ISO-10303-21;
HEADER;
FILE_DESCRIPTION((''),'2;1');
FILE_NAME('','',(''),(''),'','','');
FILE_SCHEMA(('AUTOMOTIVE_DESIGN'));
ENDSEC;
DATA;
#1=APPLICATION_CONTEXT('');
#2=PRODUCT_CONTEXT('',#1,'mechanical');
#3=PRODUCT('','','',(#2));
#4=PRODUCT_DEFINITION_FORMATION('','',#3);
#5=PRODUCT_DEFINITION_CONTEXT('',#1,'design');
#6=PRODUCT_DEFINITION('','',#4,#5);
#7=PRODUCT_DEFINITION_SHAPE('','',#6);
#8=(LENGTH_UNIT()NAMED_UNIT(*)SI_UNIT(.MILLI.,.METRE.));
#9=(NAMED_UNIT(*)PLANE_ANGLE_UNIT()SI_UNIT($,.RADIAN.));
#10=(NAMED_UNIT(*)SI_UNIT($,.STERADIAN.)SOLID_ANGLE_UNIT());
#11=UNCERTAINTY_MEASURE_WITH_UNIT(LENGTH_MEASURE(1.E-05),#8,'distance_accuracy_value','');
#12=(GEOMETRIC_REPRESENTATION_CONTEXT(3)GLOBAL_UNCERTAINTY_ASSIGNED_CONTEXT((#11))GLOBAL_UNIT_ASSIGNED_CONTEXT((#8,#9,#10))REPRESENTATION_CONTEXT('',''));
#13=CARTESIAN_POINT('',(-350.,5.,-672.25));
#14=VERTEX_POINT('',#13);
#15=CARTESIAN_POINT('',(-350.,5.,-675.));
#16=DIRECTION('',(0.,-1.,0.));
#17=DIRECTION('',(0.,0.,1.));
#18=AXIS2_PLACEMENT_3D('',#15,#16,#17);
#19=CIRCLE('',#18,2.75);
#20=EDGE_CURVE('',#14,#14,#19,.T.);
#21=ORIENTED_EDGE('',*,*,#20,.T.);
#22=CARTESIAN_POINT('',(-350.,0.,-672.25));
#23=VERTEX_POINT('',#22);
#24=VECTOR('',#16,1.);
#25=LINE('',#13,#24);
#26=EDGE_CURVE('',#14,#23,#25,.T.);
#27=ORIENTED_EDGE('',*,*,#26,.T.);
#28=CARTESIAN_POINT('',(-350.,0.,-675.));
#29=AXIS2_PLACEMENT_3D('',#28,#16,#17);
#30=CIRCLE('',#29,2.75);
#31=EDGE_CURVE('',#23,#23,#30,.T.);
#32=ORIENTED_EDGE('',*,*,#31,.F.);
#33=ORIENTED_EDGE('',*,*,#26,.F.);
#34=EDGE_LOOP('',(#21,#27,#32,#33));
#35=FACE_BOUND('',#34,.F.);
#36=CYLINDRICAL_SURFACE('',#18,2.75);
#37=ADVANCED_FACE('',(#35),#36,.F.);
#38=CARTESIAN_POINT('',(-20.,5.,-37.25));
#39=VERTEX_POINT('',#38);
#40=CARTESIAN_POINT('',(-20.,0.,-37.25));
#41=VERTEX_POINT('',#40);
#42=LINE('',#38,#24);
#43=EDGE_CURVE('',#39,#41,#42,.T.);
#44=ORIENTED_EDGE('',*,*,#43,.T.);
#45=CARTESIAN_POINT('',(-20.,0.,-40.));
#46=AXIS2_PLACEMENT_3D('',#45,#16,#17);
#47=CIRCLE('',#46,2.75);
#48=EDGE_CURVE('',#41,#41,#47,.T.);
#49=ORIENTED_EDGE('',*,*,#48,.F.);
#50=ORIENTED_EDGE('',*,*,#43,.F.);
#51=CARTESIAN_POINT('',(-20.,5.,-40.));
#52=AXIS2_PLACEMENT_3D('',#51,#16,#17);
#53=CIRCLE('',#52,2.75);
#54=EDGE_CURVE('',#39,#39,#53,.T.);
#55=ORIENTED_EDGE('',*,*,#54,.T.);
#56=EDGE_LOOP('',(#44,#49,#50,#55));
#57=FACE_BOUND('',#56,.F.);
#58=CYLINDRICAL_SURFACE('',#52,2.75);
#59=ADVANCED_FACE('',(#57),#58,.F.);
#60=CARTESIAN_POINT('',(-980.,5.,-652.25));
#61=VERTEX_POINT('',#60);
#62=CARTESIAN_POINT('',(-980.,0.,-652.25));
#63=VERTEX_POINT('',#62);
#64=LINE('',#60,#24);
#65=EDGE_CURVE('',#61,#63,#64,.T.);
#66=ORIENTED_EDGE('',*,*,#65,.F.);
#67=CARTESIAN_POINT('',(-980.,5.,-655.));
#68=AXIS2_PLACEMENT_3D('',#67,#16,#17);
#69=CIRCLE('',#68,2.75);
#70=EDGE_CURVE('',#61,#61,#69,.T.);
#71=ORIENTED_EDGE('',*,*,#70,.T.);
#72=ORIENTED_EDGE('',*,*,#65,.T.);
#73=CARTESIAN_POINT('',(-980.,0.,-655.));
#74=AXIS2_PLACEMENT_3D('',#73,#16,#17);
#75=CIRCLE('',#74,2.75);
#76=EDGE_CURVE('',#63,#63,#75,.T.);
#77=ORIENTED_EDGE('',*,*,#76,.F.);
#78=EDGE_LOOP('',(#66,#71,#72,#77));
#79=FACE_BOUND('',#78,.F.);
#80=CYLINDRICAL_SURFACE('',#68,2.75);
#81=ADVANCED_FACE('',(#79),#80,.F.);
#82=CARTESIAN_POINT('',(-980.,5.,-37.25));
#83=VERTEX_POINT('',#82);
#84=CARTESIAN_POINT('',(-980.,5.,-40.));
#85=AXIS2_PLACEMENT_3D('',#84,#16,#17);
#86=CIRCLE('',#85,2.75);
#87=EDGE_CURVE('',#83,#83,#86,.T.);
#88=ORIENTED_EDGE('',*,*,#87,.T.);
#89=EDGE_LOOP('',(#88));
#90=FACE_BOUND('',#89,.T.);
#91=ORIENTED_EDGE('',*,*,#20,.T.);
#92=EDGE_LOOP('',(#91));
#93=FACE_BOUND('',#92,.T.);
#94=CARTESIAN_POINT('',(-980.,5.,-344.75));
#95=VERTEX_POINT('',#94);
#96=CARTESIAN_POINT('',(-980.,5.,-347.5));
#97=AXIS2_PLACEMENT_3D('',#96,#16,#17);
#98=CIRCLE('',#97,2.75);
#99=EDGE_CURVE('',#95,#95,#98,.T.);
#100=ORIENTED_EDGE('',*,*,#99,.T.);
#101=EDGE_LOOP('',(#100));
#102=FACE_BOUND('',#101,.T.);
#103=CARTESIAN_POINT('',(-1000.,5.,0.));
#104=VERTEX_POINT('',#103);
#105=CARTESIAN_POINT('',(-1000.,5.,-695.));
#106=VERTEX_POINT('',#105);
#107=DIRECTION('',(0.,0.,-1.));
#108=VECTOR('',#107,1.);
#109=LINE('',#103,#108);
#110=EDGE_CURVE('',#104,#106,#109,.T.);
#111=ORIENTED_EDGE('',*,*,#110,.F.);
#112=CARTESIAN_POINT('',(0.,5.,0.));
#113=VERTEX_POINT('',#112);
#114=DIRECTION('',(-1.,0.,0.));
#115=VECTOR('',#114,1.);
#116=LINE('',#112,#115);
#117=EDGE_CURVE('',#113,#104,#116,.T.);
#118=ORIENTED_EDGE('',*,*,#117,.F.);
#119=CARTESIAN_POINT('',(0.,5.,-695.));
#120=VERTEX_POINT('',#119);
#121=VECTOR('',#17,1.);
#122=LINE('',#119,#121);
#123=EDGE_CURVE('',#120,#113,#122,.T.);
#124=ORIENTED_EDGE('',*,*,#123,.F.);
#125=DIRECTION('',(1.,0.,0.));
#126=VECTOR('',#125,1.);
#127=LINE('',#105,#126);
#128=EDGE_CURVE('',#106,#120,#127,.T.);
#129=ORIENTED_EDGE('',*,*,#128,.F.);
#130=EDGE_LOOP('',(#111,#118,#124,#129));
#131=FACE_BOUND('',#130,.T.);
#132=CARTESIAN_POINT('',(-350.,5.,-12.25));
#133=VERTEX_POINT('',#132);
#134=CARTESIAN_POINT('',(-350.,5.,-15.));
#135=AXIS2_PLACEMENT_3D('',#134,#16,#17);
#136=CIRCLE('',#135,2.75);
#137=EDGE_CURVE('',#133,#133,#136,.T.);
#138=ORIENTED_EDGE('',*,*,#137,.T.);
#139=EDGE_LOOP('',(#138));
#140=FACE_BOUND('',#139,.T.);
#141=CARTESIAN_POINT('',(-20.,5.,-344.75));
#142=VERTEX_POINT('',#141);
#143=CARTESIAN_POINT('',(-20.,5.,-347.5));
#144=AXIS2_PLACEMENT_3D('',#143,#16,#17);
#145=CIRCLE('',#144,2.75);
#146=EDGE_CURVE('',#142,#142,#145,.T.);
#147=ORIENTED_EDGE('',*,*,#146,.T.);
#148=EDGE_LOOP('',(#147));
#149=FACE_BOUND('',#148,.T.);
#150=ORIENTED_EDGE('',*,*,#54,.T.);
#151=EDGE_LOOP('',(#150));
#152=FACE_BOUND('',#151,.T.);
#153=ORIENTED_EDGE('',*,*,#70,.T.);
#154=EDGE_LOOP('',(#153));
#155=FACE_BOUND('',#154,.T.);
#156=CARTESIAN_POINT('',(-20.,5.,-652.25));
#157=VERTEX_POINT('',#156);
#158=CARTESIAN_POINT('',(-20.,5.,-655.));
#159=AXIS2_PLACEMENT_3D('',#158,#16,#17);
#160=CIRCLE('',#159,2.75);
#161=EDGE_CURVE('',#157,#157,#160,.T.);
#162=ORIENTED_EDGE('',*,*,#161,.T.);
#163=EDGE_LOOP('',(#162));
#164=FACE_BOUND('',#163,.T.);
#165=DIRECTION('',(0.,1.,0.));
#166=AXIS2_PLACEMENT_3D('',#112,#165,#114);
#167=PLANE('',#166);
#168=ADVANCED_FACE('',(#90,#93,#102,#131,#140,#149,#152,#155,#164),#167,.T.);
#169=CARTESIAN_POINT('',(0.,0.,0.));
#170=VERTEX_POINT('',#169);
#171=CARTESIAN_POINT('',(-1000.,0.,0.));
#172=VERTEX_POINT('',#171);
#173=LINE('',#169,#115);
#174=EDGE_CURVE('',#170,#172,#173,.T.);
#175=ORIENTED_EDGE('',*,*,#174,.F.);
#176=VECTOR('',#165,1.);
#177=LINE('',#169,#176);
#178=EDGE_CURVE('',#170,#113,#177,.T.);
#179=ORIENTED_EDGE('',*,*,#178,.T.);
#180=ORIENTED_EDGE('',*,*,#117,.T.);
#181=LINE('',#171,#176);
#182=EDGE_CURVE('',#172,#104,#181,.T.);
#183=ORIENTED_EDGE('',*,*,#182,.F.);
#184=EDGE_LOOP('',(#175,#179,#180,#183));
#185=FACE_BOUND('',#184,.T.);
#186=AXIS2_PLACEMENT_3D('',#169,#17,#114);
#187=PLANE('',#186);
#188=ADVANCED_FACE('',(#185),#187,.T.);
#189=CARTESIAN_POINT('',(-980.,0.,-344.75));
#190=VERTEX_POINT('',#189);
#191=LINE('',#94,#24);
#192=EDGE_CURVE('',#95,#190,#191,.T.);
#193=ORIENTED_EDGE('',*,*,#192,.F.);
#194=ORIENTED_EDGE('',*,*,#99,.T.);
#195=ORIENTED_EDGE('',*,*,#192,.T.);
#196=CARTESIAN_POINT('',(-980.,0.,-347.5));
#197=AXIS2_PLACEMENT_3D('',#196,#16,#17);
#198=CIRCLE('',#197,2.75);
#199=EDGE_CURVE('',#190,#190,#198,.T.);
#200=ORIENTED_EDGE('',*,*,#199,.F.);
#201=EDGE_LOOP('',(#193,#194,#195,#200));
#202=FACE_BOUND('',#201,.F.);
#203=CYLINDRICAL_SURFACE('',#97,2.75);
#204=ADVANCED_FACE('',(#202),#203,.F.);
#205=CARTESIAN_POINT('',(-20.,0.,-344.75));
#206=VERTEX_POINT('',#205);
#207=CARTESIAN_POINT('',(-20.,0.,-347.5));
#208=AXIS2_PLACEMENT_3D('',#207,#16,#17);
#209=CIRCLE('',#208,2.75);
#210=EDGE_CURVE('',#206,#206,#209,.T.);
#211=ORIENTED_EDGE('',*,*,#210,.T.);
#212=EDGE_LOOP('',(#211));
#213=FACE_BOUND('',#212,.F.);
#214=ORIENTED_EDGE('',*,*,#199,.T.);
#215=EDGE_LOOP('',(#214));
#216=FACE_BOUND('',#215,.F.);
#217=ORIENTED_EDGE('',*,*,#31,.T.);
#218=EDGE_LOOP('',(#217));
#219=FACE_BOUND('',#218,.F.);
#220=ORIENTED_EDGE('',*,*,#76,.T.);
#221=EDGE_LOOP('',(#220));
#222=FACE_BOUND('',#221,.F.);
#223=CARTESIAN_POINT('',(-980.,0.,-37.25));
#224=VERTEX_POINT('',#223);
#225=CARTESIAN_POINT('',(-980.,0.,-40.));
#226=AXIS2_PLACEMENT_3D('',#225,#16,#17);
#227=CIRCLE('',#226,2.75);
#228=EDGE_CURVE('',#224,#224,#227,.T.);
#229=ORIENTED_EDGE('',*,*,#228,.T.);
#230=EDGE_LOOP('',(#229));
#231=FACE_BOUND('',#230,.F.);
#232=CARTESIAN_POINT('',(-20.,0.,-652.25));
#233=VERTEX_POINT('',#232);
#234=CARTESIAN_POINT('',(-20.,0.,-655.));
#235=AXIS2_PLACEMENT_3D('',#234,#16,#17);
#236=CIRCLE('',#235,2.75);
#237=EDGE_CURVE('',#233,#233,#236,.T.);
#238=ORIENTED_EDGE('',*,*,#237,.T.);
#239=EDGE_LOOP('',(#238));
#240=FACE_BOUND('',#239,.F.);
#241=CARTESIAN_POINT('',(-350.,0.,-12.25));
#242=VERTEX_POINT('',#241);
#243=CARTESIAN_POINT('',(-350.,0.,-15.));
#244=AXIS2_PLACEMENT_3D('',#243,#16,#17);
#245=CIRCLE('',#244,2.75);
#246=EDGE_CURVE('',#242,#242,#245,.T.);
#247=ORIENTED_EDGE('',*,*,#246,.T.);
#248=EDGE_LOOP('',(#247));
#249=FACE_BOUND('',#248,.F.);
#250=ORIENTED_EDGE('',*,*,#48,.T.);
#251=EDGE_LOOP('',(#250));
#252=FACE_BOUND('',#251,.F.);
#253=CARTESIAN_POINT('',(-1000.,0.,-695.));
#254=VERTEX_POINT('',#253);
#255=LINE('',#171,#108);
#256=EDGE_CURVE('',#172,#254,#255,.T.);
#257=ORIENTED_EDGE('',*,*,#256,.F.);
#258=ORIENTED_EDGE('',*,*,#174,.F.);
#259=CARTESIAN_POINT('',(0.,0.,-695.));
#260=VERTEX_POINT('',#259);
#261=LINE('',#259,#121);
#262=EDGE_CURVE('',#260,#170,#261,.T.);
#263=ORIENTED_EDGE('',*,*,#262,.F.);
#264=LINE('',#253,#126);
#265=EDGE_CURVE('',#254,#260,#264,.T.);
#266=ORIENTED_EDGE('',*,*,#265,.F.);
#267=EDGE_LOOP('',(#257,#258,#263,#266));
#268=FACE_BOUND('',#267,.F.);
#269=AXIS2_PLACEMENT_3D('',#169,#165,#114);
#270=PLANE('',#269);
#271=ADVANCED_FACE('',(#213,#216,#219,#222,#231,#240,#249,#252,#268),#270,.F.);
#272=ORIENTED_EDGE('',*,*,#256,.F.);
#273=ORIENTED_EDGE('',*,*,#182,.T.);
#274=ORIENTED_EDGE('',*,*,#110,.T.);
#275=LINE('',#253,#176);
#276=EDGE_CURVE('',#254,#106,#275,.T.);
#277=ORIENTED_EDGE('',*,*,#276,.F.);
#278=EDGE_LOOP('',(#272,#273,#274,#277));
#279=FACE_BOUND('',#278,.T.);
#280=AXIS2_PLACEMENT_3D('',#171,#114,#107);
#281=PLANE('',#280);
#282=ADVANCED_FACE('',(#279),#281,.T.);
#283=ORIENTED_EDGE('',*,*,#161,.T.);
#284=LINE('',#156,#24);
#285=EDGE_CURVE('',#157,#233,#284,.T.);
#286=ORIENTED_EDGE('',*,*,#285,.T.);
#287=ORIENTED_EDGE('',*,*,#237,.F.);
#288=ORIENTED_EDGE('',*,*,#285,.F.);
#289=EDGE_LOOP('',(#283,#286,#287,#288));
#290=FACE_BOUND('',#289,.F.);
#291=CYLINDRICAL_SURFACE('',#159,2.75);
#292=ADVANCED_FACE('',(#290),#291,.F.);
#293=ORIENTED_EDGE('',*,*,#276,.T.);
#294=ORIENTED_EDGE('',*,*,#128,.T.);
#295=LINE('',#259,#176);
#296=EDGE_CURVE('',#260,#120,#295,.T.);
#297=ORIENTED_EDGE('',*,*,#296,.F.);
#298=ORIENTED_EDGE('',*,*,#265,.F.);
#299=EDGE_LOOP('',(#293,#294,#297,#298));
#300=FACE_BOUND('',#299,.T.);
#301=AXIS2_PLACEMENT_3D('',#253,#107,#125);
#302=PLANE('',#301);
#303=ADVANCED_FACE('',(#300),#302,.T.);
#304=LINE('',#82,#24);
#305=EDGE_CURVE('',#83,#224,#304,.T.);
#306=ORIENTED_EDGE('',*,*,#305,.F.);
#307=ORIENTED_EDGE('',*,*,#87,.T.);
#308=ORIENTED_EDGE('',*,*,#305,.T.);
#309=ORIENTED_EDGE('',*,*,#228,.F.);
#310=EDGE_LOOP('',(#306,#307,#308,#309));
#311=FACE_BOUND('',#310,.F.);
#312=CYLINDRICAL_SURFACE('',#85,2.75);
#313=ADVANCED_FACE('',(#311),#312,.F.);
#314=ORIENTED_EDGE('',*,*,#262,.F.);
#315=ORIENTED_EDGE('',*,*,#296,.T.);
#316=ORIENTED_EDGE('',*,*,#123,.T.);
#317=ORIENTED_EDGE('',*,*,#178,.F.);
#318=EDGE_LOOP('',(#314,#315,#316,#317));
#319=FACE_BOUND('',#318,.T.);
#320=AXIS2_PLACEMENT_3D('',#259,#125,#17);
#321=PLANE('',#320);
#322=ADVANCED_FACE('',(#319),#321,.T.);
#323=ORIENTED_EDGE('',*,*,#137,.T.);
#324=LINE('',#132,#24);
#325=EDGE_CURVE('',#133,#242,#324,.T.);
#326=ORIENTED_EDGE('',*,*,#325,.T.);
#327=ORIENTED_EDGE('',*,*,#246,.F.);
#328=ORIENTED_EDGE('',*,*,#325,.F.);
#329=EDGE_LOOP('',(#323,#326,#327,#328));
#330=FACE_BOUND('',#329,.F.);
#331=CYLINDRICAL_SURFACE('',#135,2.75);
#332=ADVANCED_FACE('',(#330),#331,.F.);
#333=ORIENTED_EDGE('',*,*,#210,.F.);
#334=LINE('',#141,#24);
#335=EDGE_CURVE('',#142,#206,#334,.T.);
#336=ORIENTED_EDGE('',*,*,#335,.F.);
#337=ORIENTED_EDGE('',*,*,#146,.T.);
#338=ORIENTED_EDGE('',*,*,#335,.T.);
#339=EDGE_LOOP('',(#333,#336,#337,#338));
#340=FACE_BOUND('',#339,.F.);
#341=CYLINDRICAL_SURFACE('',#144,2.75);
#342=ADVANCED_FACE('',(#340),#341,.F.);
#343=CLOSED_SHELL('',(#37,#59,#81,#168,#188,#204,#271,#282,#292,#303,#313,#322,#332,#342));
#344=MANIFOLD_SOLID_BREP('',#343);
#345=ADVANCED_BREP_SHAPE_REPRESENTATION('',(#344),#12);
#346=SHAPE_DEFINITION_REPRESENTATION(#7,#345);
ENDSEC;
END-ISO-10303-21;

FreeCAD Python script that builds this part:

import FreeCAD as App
import Part
import Sketcher
from FreeCAD import Vector
Q = App.Units.Quantity


def add_polygon(sketch, points):
    """Adds a closed chain of lines whose ends are joined by coincident constraints."""
    first, n = sketch.GeometryCount, len(points)
    for a, b in zip(points, points[1:] + points[:1]):
        sketch.addGeometry(Part.LineSegment(App.Vector(*a, 0), App.Vector(*b, 0)), False)
    for i in range(n):
        sketch.addConstraint(Sketcher.Constraint("Coincident", first + i, 2, first + (i + 1) % n, 1))

doc = App.newDocument("Part")
body = doc.addObject("PartDesign::Body", "Body")

sketch1 = body.newObject("Sketcher::SketchObject", "Sketch")
sketch1.AttachmentSupport = (doc.getObject("XZ_Plane"), [""])
sketch1.MapMode = "FlatFace"
add_polygon(sketch1, [(-1000, 0), (0, 0), (0, -695), (-1000, -695)])
sketch1.addConstraint([
    Sketcher.Constraint("Horizontal", 0),
    Sketcher.Constraint("Vertical", 1),
    Sketcher.Constraint("Horizontal", 2),
    Sketcher.Constraint("Vertical", 3),
    Sketcher.Constraint("Coincident", 0, 2, -1, 1),
    Sketcher.Constraint("DistanceX", 0, 1, 0, 2, Q("1000 mm")),
    Sketcher.Constraint("DistanceY", 1, 2, 1, 1, Q("695 mm")),
])
pad1 = body.newObject("PartDesign::Pad", "Pad")
pad1.Profile = sketch1
pad1.Length = 5
pad1.Reversed = True

sketch2 = body.newObject("Sketcher::SketchObject", "Sketch001")
sketch2.AttachmentSupport = (doc.getObject("XZ_Plane"), [""])
sketch2.MapMode = "FlatFace"
sketch2.AttachmentOffset = App.Placement(Vector(0, 0, -5), App.Rotation())
sketch2.addGeometry([
    Part.Circle(Vector(-20, -40, 0), Vector(0, 0, 1), 2.75),
    Part.Circle(Vector(-20, -347.5, 0), Vector(0, 0, 1), 2.75),
    Part.Circle(Vector(-20, -655, 0), Vector(0, 0, 1), 2.75),
    Part.Circle(Vector(-980, -40, 0), Vector(0, 0, 1), 2.75),
    Part.Circle(Vector(-980, -347.5, 0), Vector(0, 0, 1), 2.75),
    Part.Circle(Vector(-980, -655, 0), Vector(0, 0, 1), 2.75),
], False)
sketch2.addConstraint([
    Sketcher.Constraint("Equal", 0, 1),
    Sketcher.Constraint("Equal", 1, 2),
    Sketcher.Constraint("Equal", 2, 3),
    Sketcher.Constraint("Equal", 3, 4),
    Sketcher.Constraint("Equal", 4, 5),
    Sketcher.Constraint("Horizontal", 0, 3, 3, 3),
    Sketcher.Constraint("Horizontal", 1, 3, 4, 3),
    Sketcher.Constraint("Horizontal", 2, 3, 5, 3),
    Sketcher.Constraint("Vertical", 0, 3, 1, 3),
    Sketcher.Constraint("Vertical", 1, 3, 2, 3),
    Sketcher.Constraint("Vertical", 3, 3, 4, 3),
    Sketcher.Constraint("Vertical", 4, 3, 5, 3),
    Sketcher.Constraint("Diameter", 0, Q("5.5 mm")),
    Sketcher.Constraint("DistanceX", 0, 3, -1, 1, Q("20 mm")),
    Sketcher.Constraint("DistanceY", 0, 3, -1, 1, Q("40 mm")),
    Sketcher.Constraint("DistanceY", 2, 3, -1, 1, Q("655 mm")),
    Sketcher.Constraint("DistanceX", 3, 3, -1, 1, Q("980 mm")),
    Sketcher.Constraint("DistanceY", 1, 3, -1, 1, Q("347.5 mm")),
])
doc.recompute()
hole = body.newObject("PartDesign::Hole", "Hole")
hole.Profile = sketch2
hole.ThreadType = "None"
hole.Diameter = 5.5
hole.DepthType = "ThroughAll"
hole.Reversed = True

sketch3 = body.newObject("Sketcher::SketchObject", "Sketch002")
sketch3.AttachmentSupport = (doc.getObject("XZ_Plane"), [""])
sketch3.MapMode = "FlatFace"
sketch3.AttachmentOffset = App.Placement(Vector(0, 0, -5), App.Rotation())
sketch3.addGeometry([
    Part.Circle(Vector(-350, -15, 0), Vector(0, 0, 1), 2.75),
    Part.Circle(Vector(-350, -675, 0), Vector(0, 0, 1), 2.75),
], False)
sketch3.addConstraint([
    Sketcher.Constraint("Equal", 0, 1),
    Sketcher.Constraint("Vertical", 0, 3, 1, 3),
    Sketcher.Constraint("Diameter", 0, Q("5.5 mm")),
    Sketcher.Constraint("DistanceX", 0, 3, -1, 1, Q("350 mm")),
    Sketcher.Constraint("DistanceY", 0, 3, -1, 1, Q("15 mm")),
    Sketcher.Constraint("DistanceY", 1, 3, -1, 1, Q("675 mm")),
])
doc.recompute()
hole2 = body.newObject("PartDesign::Hole", "Hole001")
hole2.Profile = sketch3
hole2.ThreadType = "None"
hole2.Diameter = 5.5
hole2.DepthType = "ThroughAll"
hole2.Reversed = True

doc.recompute()
